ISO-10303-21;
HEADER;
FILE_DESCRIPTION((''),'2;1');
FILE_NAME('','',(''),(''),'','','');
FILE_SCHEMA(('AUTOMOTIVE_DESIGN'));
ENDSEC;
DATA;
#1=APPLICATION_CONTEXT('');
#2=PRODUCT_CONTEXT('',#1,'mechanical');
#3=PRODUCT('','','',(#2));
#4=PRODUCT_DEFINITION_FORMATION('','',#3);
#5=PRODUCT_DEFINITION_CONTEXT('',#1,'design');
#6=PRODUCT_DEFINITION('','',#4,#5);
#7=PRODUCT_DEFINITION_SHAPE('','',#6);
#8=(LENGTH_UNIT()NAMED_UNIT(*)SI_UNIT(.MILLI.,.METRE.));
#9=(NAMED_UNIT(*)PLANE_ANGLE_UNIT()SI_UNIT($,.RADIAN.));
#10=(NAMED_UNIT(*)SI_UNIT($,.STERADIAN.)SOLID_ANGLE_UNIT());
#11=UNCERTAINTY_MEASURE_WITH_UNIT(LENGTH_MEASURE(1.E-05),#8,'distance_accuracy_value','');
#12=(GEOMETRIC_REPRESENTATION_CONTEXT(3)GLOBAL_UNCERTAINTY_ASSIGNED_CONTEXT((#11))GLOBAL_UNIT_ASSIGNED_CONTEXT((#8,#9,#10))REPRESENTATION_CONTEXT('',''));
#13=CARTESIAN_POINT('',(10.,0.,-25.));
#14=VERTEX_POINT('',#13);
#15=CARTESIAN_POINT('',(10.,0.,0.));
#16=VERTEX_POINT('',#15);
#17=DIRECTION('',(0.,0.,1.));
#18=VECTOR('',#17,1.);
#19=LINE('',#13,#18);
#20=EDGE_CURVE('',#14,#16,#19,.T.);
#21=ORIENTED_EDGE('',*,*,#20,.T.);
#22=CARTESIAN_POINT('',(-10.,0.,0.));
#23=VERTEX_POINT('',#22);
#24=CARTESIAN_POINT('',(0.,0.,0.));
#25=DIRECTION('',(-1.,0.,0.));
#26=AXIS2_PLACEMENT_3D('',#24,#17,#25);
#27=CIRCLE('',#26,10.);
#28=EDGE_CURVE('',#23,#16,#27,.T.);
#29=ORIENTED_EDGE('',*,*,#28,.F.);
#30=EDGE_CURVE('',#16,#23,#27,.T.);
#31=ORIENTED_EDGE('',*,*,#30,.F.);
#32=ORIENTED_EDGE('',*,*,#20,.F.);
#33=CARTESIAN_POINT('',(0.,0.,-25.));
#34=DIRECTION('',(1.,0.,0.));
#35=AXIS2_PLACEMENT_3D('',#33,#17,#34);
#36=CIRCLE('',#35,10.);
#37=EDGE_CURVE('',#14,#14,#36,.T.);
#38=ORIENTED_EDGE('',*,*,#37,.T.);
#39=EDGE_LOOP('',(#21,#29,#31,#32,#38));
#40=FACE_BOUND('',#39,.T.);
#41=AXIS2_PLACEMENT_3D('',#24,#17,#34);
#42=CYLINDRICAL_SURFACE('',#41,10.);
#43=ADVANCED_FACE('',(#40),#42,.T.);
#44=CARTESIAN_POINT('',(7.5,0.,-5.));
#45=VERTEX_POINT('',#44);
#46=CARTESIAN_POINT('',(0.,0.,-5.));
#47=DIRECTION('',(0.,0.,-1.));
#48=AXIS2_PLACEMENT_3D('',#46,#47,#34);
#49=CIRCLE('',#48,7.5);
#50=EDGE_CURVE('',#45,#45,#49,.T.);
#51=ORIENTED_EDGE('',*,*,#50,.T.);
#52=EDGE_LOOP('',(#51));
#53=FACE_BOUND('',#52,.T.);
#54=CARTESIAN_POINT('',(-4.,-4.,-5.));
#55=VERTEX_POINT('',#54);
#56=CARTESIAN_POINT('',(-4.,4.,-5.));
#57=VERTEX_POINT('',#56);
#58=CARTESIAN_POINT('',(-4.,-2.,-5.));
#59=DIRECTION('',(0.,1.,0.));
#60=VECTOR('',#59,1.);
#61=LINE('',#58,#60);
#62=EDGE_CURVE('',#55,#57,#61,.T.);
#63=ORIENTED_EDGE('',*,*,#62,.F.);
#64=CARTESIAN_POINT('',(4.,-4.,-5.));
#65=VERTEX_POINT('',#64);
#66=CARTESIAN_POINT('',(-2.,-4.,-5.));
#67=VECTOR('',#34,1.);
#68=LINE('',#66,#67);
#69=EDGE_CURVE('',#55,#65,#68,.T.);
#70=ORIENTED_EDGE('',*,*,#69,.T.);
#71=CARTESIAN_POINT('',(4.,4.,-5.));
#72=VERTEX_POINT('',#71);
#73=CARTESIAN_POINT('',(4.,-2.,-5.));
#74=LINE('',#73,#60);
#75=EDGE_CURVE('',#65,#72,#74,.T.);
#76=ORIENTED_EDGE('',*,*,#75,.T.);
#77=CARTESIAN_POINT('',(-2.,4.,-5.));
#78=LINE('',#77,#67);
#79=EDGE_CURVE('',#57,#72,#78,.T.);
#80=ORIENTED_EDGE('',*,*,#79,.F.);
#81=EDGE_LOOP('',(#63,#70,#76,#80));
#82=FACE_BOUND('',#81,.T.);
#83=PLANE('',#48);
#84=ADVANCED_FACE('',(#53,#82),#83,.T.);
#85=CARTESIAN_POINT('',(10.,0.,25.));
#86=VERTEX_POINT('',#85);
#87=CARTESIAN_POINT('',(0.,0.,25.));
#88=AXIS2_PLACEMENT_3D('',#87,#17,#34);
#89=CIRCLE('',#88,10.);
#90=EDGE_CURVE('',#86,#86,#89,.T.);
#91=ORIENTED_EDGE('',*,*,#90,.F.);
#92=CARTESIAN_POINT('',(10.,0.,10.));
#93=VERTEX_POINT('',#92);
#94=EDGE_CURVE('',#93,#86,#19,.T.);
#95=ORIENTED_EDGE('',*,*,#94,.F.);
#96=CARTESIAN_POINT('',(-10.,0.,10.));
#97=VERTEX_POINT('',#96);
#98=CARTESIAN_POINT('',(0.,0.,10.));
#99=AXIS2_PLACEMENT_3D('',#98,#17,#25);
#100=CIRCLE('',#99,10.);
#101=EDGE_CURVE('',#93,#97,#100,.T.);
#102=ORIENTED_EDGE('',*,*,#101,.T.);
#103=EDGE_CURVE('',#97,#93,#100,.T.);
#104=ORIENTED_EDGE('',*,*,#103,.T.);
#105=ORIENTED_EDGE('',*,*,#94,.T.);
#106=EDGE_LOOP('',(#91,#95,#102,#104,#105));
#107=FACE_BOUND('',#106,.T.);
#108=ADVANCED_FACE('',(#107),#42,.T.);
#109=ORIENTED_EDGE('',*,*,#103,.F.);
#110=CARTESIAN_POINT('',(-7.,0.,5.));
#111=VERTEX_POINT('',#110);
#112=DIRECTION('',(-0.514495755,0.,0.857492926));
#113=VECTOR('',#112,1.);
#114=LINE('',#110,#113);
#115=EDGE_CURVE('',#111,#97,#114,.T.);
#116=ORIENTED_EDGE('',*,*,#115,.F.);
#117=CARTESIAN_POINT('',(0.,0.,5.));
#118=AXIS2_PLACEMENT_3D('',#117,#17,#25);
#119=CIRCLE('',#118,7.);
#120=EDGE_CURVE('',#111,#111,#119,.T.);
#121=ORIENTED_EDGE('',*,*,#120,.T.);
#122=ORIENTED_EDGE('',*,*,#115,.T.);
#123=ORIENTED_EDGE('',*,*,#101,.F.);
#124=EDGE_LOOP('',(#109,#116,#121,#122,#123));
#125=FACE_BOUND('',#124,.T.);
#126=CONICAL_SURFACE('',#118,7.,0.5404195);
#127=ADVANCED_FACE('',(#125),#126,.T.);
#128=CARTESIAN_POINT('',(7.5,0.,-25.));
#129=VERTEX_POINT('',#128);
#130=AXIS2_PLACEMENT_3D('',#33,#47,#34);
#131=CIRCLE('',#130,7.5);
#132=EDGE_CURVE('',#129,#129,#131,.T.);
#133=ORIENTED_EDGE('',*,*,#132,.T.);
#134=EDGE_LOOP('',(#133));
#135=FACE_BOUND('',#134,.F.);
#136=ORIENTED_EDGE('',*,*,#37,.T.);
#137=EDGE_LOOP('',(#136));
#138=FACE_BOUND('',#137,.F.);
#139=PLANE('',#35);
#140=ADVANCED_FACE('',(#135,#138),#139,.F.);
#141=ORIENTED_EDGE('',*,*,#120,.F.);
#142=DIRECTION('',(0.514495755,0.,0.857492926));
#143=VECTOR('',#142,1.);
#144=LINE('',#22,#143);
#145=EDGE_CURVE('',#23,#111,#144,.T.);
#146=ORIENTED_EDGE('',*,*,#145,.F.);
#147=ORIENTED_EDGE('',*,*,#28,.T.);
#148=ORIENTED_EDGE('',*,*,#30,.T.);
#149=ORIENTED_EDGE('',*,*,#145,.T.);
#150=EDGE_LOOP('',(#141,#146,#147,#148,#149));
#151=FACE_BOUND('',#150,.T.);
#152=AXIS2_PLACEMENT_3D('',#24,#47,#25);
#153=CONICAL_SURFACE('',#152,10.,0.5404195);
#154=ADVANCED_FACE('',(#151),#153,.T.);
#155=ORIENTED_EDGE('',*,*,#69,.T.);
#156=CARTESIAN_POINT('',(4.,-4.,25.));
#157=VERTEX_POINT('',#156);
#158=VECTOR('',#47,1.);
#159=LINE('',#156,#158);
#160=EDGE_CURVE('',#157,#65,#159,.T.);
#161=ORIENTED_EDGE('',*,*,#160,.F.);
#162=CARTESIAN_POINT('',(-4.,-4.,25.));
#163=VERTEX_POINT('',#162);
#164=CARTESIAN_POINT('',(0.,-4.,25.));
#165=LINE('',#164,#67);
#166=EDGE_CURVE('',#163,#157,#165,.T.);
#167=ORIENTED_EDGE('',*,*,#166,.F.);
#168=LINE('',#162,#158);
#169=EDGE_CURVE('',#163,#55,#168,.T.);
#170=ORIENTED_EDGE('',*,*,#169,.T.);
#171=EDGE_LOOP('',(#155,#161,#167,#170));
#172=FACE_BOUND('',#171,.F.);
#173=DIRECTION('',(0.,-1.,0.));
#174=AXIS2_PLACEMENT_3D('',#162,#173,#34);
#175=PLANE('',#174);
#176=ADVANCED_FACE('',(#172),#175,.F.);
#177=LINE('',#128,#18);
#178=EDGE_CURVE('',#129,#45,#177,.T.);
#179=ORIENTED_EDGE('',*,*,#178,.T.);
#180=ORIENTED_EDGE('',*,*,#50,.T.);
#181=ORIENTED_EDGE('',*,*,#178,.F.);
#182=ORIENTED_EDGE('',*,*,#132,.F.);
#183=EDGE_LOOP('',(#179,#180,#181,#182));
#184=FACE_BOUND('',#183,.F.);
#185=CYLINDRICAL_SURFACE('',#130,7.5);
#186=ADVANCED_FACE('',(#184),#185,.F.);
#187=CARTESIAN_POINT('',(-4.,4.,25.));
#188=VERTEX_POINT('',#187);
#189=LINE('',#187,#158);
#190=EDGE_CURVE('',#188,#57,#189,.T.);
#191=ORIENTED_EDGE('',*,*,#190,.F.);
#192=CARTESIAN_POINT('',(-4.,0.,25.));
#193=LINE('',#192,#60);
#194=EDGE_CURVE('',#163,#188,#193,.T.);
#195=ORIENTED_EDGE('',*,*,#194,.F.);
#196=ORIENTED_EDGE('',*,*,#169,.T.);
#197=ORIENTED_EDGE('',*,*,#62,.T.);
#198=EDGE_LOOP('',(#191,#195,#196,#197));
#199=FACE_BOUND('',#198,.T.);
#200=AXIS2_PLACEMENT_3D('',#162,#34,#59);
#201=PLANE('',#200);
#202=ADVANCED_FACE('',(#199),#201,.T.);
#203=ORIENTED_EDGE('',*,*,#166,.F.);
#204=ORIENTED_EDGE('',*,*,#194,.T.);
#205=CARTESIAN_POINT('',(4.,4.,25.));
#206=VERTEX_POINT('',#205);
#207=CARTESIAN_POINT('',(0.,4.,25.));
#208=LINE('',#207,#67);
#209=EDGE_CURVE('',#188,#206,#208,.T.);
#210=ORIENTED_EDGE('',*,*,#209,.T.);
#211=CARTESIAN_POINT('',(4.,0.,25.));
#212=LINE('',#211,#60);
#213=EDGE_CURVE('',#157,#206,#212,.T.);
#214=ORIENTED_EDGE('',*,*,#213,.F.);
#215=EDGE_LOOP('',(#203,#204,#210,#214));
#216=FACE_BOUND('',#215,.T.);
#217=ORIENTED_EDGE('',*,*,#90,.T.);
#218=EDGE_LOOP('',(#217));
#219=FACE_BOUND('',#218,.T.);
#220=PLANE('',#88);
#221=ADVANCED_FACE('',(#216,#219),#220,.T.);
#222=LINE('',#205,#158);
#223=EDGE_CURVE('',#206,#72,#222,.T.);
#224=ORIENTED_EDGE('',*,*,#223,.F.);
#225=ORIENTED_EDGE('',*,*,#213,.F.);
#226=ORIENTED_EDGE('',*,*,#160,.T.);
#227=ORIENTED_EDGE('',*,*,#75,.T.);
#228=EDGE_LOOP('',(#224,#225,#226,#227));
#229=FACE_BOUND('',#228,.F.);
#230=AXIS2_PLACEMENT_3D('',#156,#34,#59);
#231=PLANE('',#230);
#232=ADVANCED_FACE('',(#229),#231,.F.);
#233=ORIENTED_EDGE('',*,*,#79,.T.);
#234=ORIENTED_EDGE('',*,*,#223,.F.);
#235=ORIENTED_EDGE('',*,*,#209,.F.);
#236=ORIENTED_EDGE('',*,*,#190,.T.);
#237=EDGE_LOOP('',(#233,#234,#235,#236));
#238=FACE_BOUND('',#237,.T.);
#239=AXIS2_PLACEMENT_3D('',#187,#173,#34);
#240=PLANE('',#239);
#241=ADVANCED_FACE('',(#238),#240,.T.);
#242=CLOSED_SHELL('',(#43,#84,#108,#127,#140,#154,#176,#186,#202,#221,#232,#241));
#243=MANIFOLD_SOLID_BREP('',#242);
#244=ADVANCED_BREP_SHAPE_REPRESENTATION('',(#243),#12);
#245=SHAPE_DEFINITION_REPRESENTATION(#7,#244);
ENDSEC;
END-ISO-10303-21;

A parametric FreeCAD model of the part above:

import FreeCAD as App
import Part
import Sketcher
Q = App.Units.Quantity

doc = App.newDocument("Part")
body = doc.addObject("PartDesign::Body", "Body")

# Sketch on XY plane
sketch1 = doc.addObject("Sketcher::SketchObject", "Sketch")
body.addObject(sketch1)
sketch1.AttachmentSupport = (doc.XY_Plane, [""])
sketch1.MapMode = "FlatFace"
sketch1.addGeometry(Part.Circle(App.Vector(0, 0, 0), App.Vector(0, 0, 1), 10), False)
sketch1.addConstraint([
    Sketcher.Constraint("Coincident", 0, 3, -1, 1),
    Sketcher.Constraint("Diameter", 0, Q("20 mm")),
])
pad1 = doc.addObject("PartDesign::Pad", "Pad")
body.addObject(pad1)
pad1.Profile = sketch1
pad1.Length = 50
pad1.Midplane = True

# Sketch on XY plane
sketch2 = doc.addObject("Sketcher::SketchObject", "Sketch001")
body.addObject(sketch2)
sketch2.AttachmentSupport = (doc.XY_Plane, [""])
sketch2.MapMode = "FlatFace"
sketch2.AttachmentOffset = App.Placement(App.Vector(0, 0, 25), App.Rotation())
sketch2.addGeometry([
    Part.LineSegment(App.Vector(-4, 4, 0), App.Vector(-4, -4, 0)),
    Part.LineSegment(App.Vector(-4, -4, 0), App.Vector(4, -4, 0)),
    Part.LineSegment(App.Vector(4, -4, 0), App.Vector(4, 4, 0)),
    Part.LineSegment(App.Vector(4, 4, 0), App.Vector(-4, 4, 0)),
], False)
sketch2.addConstraint([
    Sketcher.Constraint("Coincident", 0, 2, 1, 1),
    Sketcher.Constraint("Coincident", 1, 2, 2, 1),
    Sketcher.Constraint("Coincident", 2, 2, 3, 1),
    Sketcher.Constraint("Coincident", 3, 2, 0, 1),
    Sketcher.Constraint("Vertical", 0),
    Sketcher.Constraint("Horizontal", 1),
    Sketcher.Constraint("Vertical", 2),
    Sketcher.Constraint("Horizontal", 3),
    Sketcher.Constraint("Symmetric", 0, 2, 2, 2, -1, 1),
    Sketcher.Constraint("Equal", 3, 0),
    Sketcher.Constraint("DistanceX", 1, 1, 1, 2, Q("8 mm")),
])
pocket1 = doc.addObject("PartDesign::Pocket", "Pocket")
body.addObject(pocket1)
pocket1.Profile = sketch2
pocket1.Type = "ThroughAll"

# Sketch on XZ plane
sketch3 = doc.addObject("Sketcher::SketchObject", "Sketch002")
body.addObject(sketch3)
sketch3.AttachmentSupport = (doc.XZ_Plane, [""])
sketch3.MapMode = "FlatFace"
sketch3.addGeometry([
    Part.LineSegment(App.Vector(-10, 10, 0), App.Vector(-10, 0, 0)),
    Part.LineSegment(App.Vector(-10, 0, 0), App.Vector(-7, 5, 0)),
    Part.LineSegment(App.Vector(-7, 5, 0), App.Vector(-10, 10, 0)),
], False)
sketch3.addConstraint([
    Sketcher.Constraint("Coincident", 0, 2, 1, 1),
    Sketcher.Constraint("Coincident", 1, 2, 2, 1),
    Sketcher.Constraint("Coincident", 2, 2, 0, 1),
    Sketcher.Constraint("Vertical", 0),
    Sketcher.Constraint("PointOnObject", 0, 2, -1),
    Sketcher.Constraint("Equal", 1, 2),
    Sketcher.Constraint("DistanceY", 0, 2, 0, 1, Q("10 mm")),
    Sketcher.Constraint("DistanceX", 0, 2, -1, 1, Q("10 mm")),
    Sketcher.Constraint("DistanceX", 1, 2, -1, 1, Q("7 mm")),
])
groove = doc.addObject("PartDesign::Groove", "Groove")
body.addObject(groove)
groove.Profile = sketch3
groove.ReferenceAxis = (sketch3, ["V_Axis"])
groove.Angle = 360

# Sketch on XY plane
sketch4 = doc.addObject("Sketcher::SketchObject", "Sketch003")
body.addObject(sketch4)
sketch4.AttachmentSupport = (doc.XY_Plane, [""])
sketch4.MapMode = "FlatFace"
sketch4.AttachmentOffset = App.Placement(App.Vector(0, 0, -25), App.Rotation())
sketch4.addGeometry(Part.Circle(App.Vector(0, 0, 0), App.Vector(0, 0, 1), 8), False)
sketch4.addConstraint([
    Sketcher.Constraint("Coincident", 0, 3, -1, 1),
    Sketcher.Constraint("Diameter", 0, Q("15 mm")),
])
pocket2 = doc.addObject("PartDesign::Pocket", "Pocket001")
body.addObject(pocket2)
pocket2.Profile = sketch4
pocket2.Length = 20
pocket2.Reversed = True

doc.recompute()
